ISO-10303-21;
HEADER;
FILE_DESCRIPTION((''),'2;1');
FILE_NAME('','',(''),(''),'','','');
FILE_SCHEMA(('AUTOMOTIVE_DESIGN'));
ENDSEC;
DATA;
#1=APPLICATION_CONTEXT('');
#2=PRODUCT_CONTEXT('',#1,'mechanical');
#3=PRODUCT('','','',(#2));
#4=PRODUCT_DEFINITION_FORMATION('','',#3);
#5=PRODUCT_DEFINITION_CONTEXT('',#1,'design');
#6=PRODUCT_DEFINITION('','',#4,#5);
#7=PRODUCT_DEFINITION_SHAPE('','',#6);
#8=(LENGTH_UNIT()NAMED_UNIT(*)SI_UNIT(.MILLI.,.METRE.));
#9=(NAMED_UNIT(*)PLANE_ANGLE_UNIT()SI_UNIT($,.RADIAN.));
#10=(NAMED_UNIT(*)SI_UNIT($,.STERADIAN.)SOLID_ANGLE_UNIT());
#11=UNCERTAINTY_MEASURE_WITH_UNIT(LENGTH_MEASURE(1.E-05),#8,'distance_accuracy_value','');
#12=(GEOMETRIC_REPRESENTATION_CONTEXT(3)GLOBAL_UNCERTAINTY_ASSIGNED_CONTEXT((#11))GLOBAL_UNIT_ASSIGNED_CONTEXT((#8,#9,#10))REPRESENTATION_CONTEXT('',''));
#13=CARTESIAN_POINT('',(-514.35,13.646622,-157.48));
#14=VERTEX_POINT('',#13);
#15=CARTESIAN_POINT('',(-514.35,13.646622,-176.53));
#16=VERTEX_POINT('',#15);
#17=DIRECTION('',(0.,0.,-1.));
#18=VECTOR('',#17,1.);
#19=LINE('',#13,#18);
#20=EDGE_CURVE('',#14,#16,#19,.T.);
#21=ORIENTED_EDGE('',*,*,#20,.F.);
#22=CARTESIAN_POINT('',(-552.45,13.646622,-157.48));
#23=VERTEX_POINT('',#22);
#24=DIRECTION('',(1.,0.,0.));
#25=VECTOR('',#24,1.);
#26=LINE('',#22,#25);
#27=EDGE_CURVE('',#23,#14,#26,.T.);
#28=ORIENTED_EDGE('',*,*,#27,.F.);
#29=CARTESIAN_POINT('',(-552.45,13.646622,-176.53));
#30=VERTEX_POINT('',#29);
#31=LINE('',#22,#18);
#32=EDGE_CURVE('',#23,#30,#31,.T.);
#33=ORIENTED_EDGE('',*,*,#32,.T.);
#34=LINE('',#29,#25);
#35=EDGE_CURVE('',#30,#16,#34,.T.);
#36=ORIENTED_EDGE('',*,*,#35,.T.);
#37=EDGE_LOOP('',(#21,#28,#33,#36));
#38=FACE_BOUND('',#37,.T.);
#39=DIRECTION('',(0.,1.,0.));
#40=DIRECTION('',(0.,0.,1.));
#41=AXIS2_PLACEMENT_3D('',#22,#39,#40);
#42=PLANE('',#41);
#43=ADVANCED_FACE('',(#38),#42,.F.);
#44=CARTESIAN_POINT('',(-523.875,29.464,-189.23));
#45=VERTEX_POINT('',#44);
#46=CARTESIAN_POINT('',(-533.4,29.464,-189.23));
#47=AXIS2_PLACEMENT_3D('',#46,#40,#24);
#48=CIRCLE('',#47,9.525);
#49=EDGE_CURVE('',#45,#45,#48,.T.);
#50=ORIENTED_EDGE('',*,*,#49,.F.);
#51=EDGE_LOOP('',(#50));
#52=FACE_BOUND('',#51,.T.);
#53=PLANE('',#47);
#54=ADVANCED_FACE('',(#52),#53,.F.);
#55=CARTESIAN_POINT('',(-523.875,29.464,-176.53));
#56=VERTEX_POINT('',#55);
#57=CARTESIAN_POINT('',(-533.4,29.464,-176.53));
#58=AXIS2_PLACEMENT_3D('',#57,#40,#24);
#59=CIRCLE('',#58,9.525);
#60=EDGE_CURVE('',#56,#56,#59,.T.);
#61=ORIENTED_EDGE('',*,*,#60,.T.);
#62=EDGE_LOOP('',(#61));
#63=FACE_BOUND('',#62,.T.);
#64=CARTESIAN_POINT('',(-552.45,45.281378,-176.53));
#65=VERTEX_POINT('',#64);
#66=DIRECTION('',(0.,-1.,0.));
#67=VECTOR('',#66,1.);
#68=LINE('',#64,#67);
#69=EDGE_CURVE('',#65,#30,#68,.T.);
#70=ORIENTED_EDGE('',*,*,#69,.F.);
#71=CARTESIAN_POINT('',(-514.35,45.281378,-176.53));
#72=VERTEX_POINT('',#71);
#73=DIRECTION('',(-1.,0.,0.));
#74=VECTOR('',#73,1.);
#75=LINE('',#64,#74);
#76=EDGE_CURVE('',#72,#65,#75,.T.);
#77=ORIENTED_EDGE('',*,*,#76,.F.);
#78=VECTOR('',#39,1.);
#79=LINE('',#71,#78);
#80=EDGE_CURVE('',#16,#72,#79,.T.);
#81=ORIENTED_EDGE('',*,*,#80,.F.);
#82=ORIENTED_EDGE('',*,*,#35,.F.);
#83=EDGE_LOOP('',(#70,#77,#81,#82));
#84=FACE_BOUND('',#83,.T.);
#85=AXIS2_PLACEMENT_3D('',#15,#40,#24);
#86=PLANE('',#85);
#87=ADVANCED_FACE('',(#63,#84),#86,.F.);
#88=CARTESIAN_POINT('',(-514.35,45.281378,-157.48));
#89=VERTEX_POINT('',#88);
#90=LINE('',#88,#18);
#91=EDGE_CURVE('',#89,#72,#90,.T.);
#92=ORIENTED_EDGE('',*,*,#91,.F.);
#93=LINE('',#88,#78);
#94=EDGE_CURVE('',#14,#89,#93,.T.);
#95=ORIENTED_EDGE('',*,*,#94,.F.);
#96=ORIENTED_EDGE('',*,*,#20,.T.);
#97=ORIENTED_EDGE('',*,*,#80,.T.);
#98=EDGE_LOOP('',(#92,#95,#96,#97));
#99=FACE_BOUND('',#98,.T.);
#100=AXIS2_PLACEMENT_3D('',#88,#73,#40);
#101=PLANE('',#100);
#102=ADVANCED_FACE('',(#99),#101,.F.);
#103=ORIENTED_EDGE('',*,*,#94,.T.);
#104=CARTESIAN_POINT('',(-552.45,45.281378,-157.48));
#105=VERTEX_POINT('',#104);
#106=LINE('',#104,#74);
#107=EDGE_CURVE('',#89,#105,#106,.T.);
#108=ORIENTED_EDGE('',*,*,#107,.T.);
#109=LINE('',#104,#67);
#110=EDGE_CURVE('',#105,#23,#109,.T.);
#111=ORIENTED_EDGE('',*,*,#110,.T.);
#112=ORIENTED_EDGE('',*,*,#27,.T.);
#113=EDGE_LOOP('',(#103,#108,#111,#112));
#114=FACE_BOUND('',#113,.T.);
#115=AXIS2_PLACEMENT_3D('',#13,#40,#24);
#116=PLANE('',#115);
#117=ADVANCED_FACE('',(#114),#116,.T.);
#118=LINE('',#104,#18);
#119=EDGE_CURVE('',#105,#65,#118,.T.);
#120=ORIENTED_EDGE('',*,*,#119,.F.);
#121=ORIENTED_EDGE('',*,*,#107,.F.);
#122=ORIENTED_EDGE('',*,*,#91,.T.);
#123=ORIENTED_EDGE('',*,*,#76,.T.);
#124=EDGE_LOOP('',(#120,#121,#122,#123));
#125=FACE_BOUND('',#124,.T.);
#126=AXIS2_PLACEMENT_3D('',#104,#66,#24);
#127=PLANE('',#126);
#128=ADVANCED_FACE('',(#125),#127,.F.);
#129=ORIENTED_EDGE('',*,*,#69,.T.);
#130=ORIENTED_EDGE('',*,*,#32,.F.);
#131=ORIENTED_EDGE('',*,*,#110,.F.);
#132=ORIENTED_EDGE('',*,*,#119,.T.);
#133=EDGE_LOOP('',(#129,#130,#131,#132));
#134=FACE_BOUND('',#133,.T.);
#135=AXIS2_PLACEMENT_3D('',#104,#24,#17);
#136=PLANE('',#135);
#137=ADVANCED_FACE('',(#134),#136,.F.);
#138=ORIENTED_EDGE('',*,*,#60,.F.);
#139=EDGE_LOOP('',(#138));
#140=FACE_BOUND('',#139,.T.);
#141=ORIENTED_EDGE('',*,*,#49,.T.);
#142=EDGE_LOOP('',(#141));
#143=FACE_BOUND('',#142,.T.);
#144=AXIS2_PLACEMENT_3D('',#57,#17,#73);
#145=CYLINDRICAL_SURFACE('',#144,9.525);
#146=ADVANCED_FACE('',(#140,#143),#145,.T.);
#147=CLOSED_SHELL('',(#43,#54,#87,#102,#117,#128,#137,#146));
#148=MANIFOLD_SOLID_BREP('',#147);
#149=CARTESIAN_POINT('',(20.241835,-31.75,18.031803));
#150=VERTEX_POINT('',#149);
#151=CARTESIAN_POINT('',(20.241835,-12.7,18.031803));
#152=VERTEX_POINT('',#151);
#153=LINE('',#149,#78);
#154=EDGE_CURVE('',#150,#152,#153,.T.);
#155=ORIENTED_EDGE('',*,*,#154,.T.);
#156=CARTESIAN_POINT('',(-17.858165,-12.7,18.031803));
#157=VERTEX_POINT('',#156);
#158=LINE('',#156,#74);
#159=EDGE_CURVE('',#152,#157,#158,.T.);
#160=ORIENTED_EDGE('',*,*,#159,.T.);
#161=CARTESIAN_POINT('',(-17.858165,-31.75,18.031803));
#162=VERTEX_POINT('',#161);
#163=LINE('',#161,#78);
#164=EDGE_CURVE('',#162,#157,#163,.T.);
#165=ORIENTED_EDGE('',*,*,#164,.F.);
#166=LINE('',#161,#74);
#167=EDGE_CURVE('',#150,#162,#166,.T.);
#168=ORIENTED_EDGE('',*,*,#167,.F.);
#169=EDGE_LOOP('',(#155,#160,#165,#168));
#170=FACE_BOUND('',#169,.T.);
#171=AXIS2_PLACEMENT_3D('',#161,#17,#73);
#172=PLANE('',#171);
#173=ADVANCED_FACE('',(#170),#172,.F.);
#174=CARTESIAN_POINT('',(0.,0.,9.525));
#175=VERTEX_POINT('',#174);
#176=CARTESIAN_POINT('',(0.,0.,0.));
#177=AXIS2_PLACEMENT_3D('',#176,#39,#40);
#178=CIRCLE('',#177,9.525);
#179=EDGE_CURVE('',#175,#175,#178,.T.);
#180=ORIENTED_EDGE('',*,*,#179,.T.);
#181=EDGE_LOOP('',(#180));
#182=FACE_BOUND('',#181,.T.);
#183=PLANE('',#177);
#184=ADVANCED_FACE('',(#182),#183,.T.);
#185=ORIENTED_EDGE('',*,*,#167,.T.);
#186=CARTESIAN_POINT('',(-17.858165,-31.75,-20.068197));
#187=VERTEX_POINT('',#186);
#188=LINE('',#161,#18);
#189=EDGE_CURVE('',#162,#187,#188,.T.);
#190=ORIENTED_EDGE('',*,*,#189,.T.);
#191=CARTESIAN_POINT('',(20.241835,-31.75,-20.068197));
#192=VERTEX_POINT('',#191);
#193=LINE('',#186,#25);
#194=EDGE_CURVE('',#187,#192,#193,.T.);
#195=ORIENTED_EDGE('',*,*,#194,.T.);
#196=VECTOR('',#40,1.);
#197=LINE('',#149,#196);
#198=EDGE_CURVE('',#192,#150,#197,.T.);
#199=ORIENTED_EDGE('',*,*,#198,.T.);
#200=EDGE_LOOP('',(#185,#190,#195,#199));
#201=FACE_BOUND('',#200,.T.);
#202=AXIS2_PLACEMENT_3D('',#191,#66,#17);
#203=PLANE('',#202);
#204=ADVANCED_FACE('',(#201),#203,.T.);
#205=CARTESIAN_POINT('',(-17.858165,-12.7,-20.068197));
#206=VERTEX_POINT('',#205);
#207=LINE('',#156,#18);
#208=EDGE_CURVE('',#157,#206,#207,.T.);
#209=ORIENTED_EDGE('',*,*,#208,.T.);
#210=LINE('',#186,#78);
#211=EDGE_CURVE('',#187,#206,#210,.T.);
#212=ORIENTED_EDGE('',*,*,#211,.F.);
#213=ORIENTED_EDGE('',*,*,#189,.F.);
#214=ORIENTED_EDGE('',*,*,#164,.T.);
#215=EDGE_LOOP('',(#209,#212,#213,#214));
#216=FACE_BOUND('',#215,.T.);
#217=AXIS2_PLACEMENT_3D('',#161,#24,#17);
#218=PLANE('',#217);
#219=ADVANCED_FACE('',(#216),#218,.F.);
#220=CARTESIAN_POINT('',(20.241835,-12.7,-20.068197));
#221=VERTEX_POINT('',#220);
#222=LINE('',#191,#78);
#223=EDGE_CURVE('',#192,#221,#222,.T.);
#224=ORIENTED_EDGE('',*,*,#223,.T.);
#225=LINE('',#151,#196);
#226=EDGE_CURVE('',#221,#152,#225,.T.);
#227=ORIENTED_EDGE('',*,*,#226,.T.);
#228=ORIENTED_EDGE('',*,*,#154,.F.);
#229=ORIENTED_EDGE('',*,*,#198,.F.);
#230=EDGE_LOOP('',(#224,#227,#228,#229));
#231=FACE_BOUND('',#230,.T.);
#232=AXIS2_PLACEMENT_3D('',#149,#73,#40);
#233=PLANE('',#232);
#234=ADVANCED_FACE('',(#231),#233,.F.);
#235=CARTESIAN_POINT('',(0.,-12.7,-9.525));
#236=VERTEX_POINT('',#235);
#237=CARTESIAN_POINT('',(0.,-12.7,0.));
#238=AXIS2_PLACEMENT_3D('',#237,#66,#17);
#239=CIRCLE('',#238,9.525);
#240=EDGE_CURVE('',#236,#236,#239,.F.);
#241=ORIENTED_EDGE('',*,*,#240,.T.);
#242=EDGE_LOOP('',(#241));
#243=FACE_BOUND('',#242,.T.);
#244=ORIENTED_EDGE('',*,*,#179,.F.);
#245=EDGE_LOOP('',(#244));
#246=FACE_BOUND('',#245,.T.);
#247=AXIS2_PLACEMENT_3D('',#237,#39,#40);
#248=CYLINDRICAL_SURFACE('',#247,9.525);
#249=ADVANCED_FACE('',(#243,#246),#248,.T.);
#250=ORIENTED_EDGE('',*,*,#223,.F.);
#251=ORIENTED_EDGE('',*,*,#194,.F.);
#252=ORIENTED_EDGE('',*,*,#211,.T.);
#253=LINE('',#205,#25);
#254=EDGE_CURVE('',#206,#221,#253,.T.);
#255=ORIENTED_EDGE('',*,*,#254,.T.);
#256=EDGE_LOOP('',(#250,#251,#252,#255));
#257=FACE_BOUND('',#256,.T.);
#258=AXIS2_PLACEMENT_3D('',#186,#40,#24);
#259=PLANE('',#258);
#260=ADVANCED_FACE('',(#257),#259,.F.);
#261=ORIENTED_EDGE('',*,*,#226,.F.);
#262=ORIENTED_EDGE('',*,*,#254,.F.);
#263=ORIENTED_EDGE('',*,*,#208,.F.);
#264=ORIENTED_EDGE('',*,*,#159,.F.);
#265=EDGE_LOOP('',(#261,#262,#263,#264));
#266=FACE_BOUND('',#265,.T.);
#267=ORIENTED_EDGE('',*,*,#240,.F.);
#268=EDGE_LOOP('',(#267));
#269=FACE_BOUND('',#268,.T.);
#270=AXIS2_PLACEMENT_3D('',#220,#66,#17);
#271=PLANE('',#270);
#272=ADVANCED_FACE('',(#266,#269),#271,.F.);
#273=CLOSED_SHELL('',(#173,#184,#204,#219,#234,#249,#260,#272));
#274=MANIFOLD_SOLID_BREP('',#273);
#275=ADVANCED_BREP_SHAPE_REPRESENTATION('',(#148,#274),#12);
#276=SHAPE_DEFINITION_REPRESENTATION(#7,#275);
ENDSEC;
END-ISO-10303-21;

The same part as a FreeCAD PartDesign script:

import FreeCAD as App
import Part
import Sketcher

V = App.Vector
Q = App.Units.Quantity


def add_polygon(sketch, points):
    """Adds a closed chain of lines whose ends are joined by coincident constraints."""
    first, n = sketch.GeometryCount, len(points)
    for a, b in zip(points, points[1:] + points[:1]):
        sketch.addGeometry(Part.LineSegment(App.Vector(*a, 0), App.Vector(*b, 0)), False)
    for i in range(n):
        sketch.addConstraint(Sketcher.Constraint("Coincident", first + i, 2, first + (i + 1) % n, 1))

doc = App.newDocument("Part")
params = doc.addObject("Spreadsheet::Sheet", "Params")
for row, (alias, value) in enumerate([
    ("sketch1_diameter", "0.75 in"),
    ("pad1_length", "0.5 in"),
    ("sketch2_width", "1.5 in"),
    ("pad2_length", "0.75 in"),
    ("sketch3_diameter", "0.75 in"),
    ("pad3_length", "0.5 in"),
    ("sketch4_width", "1.5 in"),
    ("pad4_length", "0.75 in"),
], start=1):
    params.set(f"A{row}", alias)
    params.set(f"B{row}", "=" + value)
    params.setAlias(f"B{row}", alias)

body = doc.addObject("PartDesign::Body", "Body")

# Sketch on XZ plane
sketch1 = body.newObject("Sketcher::SketchObject", "Sketch")
sketch1.AttachmentSupport = (doc.getObject("XZ_Plane"), [""])
sketch1.MapMode = "FlatFace"
sketch1.addGeometry(Part.Circle(V(0, 0, 0), V(0, 0, 1), 10), False)
sketch1.addConstraint([
    Sketcher.Constraint("Coincident", 0, 3, -1, 1),
    Sketcher.Constraint("Diameter", 0, Q("0.75 in")),
])
sketch1.setExpression("Constraints[1]", "Params.sketch1_diameter")
pad1 = body.newObject("PartDesign::Pad", "Pad")
pad1.Profile = sketch1
pad1.setExpression("Length", "Params.pad1_length")

# Sketch on XZ plane
sketch2 = body.newObject("Sketcher::SketchObject", "Sketch001")
sketch2.AttachmentSupport = (doc.getObject("XZ_Plane"), [""])
sketch2.MapMode = "FlatFace"
sketch2.AttachmentOffset = App.Placement(V(0, 0, 0.5 * 25.4), App.Rotation())
add_polygon(sketch2, [(-18, 18), (-18, -20), (20, -20), (20, 18)])  # lines 0-3
sketch2.addConstraint([
    Sketcher.Constraint("Vertical", 0),
    Sketcher.Constraint("Horizontal", 1),
    Sketcher.Constraint("Vertical", 2),
    Sketcher.Constraint("Horizontal", 3),
    Sketcher.Constraint("Equal", 3, 0),
    Sketcher.Constraint("DistanceX", 1, 1, 1, 2, Q("1.5 in")),
    Sketcher.Constraint("DistanceX", 0, 2, -1, 1, Q("17.858165 mm")),
    Sketcher.Constraint("DistanceY", 0, 2, -1, 1, Q("20.068197 mm")),
])
sketch2.setExpression("Constraints[9]", "Params.sketch2_width")
pad2 = body.newObject("PartDesign::Pad", "Pad001")
pad2.Profile = sketch2
pad2.setExpression("Length", "Params.pad2_length")
body2 = doc.addObject("PartDesign::Body", "Body001")

# Sketch on XY plane
sketch3 = body2.newObject("Sketcher::SketchObject", "Sketch002")
sketch3.AttachmentSupport = (doc.getObject("XY_Plane001"), [""])
sketch3.MapMode = "FlatFace"
sketch3.AttachmentOffset = App.Placement(V(0, 0, -7.45 * 25.4), App.Rotation())
sketch3.addGeometry(Part.Circle(V(-533, 29, 0), V(0, 0, 1), 10), False)
sketch3.addConstraint([
    Sketcher.Constraint("Diameter", 0, Q("0.75 in")),
    Sketcher.Constraint("DistanceX", 0, 3, -1, 1, Q("21 in")),
    Sketcher.Constraint("DistanceY", -1, 1, 0, 3, Q("1.16 in")),
])
sketch3.setExpression("Constraints[0]", "Params.sketch3_diameter")
pad3 = body2.newObject("PartDesign::Pad", "Pad002")
pad3.Profile = sketch3
pad3.setExpression("Length", "Params.pad3_length")

# Sketch on XY plane
sketch4 = body2.newObject("Sketcher::SketchObject", "Sketch003")
sketch4.AttachmentSupport = (doc.getObject("XY_Plane001"), [""])
sketch4.MapMode = "FlatFace"
sketch4.AttachmentOffset = App.Placement(V(0, 0, -6.95 * 25.4), App.Rotation())
add_polygon(sketch4, [(-552, 45), (-552, 14), (-514, 14), (-514, 45)])  # lines 0-3
sketch4.addConstraint([
    Sketcher.Constraint("Vertical", 0),
    Sketcher.Constraint("Horizontal", 1),
    Sketcher.Constraint("Vertical", 2),
    Sketcher.Constraint("Horizontal", 3),
    Sketcher.Constraint("DistanceX", 1, 1, 1, 2, Q("1.5 in")),
    Sketcher.Constraint("DistanceX", 0, 2, -1, 1, Q("21.75 in")),
    Sketcher.Constraint("DistanceY", 0, 2, 0, 1, Q("31.634756 mm")),
    Sketcher.Constraint("DistanceY", -1, 1, 0, 2, Q("13.646622 mm")),
])
sketch4.setExpression("Constraints[8]", "Params.sketch4_width")
pad4 = body2.newObject("PartDesign::Pad", "Pad003")
pad4.Profile = sketch4
pad4.setExpression("Length", "Params.pad4_length")

doc.recompute()
